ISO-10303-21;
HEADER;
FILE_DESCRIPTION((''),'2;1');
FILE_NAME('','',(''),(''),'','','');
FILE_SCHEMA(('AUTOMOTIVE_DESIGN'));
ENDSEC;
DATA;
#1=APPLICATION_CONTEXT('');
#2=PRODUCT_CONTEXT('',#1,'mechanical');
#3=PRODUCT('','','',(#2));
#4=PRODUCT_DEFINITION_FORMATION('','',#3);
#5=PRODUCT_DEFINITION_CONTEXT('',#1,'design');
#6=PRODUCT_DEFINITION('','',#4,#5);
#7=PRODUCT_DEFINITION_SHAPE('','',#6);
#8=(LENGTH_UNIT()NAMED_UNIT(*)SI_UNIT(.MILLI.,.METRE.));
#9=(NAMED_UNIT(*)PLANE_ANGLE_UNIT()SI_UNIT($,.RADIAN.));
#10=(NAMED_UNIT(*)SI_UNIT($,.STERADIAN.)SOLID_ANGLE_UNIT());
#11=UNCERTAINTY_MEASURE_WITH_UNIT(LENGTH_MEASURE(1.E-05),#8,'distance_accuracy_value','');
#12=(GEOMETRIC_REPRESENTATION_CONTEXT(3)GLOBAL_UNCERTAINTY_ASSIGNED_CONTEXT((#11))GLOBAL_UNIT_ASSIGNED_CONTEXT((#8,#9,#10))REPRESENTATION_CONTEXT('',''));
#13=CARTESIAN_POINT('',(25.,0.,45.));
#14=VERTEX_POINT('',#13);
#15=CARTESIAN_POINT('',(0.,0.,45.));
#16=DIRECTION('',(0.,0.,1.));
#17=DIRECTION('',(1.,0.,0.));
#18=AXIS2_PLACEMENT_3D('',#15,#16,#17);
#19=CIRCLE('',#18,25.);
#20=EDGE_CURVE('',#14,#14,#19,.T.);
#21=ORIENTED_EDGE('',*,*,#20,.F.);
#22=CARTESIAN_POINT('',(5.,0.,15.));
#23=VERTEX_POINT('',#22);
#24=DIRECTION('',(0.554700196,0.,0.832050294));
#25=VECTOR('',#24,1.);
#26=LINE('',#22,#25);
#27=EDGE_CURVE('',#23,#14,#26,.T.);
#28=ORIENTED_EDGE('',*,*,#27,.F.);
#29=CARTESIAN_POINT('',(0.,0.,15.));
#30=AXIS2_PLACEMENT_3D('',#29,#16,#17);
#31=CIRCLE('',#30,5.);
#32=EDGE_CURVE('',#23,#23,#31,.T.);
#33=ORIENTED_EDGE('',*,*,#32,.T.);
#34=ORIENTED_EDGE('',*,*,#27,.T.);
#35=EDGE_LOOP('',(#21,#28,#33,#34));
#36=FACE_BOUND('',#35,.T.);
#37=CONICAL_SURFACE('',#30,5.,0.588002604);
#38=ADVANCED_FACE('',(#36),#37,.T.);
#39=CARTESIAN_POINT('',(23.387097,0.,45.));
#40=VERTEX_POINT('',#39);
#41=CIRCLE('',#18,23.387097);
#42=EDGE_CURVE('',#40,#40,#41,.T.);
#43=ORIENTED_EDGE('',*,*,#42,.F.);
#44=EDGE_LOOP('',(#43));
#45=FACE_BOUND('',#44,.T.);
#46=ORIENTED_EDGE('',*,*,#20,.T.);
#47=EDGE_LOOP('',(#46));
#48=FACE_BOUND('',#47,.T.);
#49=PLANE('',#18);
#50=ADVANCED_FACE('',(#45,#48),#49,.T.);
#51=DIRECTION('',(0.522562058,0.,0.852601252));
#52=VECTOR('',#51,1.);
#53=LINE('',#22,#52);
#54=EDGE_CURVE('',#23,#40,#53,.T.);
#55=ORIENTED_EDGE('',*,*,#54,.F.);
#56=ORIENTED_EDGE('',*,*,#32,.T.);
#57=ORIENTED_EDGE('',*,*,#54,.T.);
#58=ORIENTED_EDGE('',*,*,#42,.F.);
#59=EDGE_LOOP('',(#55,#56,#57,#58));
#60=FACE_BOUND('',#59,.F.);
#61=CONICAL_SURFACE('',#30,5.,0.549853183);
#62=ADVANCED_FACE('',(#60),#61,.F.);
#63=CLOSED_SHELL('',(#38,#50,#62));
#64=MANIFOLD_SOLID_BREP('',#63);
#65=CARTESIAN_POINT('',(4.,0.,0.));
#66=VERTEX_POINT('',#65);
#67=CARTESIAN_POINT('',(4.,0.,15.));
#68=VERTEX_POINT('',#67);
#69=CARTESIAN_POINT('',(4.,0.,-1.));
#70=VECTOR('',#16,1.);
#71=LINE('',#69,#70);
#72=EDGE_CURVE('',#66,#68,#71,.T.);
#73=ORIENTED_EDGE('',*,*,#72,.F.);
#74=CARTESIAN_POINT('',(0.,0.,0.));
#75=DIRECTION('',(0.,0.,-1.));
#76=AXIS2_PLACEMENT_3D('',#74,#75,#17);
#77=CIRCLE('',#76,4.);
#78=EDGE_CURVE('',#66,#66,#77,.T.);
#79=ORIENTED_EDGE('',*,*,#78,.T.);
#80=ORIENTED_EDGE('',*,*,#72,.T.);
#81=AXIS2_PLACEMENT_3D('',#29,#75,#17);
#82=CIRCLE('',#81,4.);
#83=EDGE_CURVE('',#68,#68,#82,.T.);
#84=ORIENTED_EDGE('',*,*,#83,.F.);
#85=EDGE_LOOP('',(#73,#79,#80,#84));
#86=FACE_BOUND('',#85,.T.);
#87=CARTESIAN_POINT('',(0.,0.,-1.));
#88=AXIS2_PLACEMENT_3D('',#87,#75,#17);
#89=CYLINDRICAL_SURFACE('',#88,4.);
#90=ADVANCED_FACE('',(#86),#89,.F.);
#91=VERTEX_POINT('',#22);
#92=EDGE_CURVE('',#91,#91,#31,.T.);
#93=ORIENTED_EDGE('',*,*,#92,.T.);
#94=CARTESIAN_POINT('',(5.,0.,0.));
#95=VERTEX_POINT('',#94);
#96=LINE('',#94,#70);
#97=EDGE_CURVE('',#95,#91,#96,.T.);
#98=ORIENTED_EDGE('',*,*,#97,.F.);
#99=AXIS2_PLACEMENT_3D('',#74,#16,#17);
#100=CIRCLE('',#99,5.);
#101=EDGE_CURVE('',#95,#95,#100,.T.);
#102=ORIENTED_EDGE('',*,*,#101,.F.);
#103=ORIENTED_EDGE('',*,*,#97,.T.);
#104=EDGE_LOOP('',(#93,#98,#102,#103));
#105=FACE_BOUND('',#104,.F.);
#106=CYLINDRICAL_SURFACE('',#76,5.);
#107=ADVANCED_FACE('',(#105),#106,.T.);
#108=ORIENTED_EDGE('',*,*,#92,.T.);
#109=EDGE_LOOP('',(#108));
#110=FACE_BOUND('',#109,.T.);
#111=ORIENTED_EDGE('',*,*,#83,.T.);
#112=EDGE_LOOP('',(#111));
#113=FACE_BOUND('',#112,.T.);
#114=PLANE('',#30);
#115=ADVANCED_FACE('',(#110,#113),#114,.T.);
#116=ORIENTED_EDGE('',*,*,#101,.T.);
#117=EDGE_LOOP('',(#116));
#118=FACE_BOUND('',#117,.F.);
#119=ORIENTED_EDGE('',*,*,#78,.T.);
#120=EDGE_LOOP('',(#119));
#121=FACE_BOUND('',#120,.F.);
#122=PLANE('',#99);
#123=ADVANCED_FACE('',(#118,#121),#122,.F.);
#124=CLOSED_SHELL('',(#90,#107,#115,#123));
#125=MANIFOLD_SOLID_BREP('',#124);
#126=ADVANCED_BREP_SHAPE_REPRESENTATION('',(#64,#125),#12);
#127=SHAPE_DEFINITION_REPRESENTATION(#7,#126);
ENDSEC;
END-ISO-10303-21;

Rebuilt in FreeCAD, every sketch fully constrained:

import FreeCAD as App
import Part
import Sketcher

V = App.Vector
Q = App.Units.Quantity

doc = App.newDocument("Part")
body = doc.addObject("PartDesign::Body", "Body")

# Sketch on XY plane
sketch1 = doc.addObject("Sketcher::SketchObject", "Sketch")
body.addObject(sketch1)
sketch1.AttachmentSupport = (doc.XY_Plane, [""])
sketch1.MapMode = "FlatFace"
sketch1.AttachmentOffset = App.Placement(V(0, 0, -1), App.Rotation())
sketch1.addGeometry(Part.Circle(V(0, 0, 0), V(0, 0, 1), 4), False)
sketch1.addConstraint([
    Sketcher.Constraint("Coincident", 0, 3, -1, 1),
    Sketcher.Constraint("Diameter", 0, Q("8 mm")),
])
pad1 = doc.addObject("PartDesign::Pad", "Pad")
body.addObject(pad1)
pad1.Profile = sketch1
pad1.Length = 17
body2 = doc.addObject("PartDesign::Body", "Body001")

# Sketch on XY plane
sketch2 = doc.addObject("Sketcher::SketchObject", "Sketch001")
body2.addObject(sketch2)
sketch2.AttachmentSupport = (doc.getObject("XY_Plane001"), [""])
sketch2.MapMode = "FlatFace"
sketch2.addGeometry(Part.Circle(V(0, 0, 0), V(0, 0, 1), 5), False)
sketch2.addConstraint([
    Sketcher.Constraint("Coincident", 0, 3, -1, 1),
    Sketcher.Constraint("Diameter", 0, Q("10 mm")),
])
pad2 = doc.addObject("PartDesign::Pad", "Pad001")
body2.addObject(pad2)
pad2.Profile = sketch2
pad2.Length = 15
doc.recompute()

boolean = doc.addObject("PartDesign::Boolean", "Boolean")
body2.addObject(boolean)
boolean.Type = "Cut"
boolean.addObjects([body])
body3 = doc.addObject("PartDesign::Body", "Body002")

# Sketch on XZ plane
sketch3 = doc.addObject("Sketcher::SketchObject", "Sketch002")
body3.addObject(sketch3)
sketch3.AttachmentSupport = (doc.getObject("XZ_Plane002"), [""])
sketch3.MapMode = "FlatFace"
sketch3.addGeometry([
    Part.LineSegment(V(0, 15, 0), V(5, 15, 0)),
    Part.LineSegment(V(5, 15, 0), V(24, 46, 0)),
    Part.LineSegment(V(24, 46, 0), V(0, 46, 0)),
    Part.LineSegment(V(0, 46, 0), V(0, 15, 0)),
], False)
sketch3.addConstraint([
    Sketcher.Constraint("Coincident", 0, 2, 1, 1),
    Sketcher.Constraint("Coincident", 1, 2, 2, 1),
    Sketcher.Constraint("Coincident", 2, 2, 3, 1),
    Sketcher.Constraint("Coincident", 3, 2, 0, 1),
    Sketcher.Constraint("Horizontal", 0),
    Sketcher.Constraint("Horizontal", 2),
    Sketcher.Constraint("Vertical", 3),
    Sketcher.Constraint("PointOnObject", 2, 2, -2),
    Sketcher.Constraint("DistanceX", 0, 1, 0, 2, Q("5 mm")),
    Sketcher.Constraint("DistanceX", 2, 2, 2, 1, Q("24 mm")),
    Sketcher.Constraint("DistanceY", 3, 2, 3, 1, Q("31 mm")),
    Sketcher.Constraint("DistanceY", -1, 1, 0, 2, Q("15 mm")),
])
revolution = doc.addObject("PartDesign::Revolution", "Revolution")
body3.addObject(revolution)
revolution.Profile = sketch3
revolution.ReferenceAxis = (sketch3, ["V_Axis"])
revolution.Angle = 360
body4 = doc.addObject("PartDesign::Body", "Body003")

# Sketch on XZ plane
sketch4 = doc.addObject("Sketcher::SketchObject", "Sketch003")
body4.addObject(sketch4)
sketch4.AttachmentSupport = (doc.getObject("XZ_Plane003"), [""])
sketch4.MapMode = "FlatFace"
sketch4.addGeometry([
    Part.LineSegment(V(0, 15, 0), V(5, 15, 0)),
    Part.LineSegment(V(5, 15, 0), V(25, 45, 0)),
    Part.LineSegment(V(25, 45, 0), V(0, 45, 0)),
    Part.LineSegment(V(0, 45, 0), V(0, 15, 0)),
], False)
sketch4.addConstraint([
    Sketcher.Constraint("Coincident", 0, 2, 1, 1),
    Sketcher.Constraint("Coincident", 1, 2, 2, 1),
    Sketcher.Constraint("Coincident", 2, 2, 3, 1),
    Sketcher.Constraint("Coincident", 3, 2, 0, 1),
    Sketcher.Constraint("Horizontal", 0),
    Sketcher.Constraint("Horizontal", 2),
    Sketcher.Constraint("Vertical", 3),
    Sketcher.Constraint("PointOnObject", 2, 2, -2),
    Sketcher.Constraint("DistanceX", 0, 1, 0, 2, Q("5 mm")),
    Sketcher.Constraint("DistanceX", 2, 2, 2, 1, Q("25 mm")),
    Sketcher.Constraint("DistanceY", 3, 2, 3, 1, Q("30 mm")),
    Sketcher.Constraint("DistanceY", -1, 1, 0, 2, Q("15 mm")),
])
revolution2 = doc.addObject("PartDesign::Revolution", "Revolution001")
body4.addObject(revolution2)
revolution2.Profile = sketch4
revolution2.ReferenceAxis = (sketch4, ["V_Axis"])
revolution2.Angle = 360
doc.recompute()

boolean2 = doc.addObject("PartDesign::Boolean", "Boolean001")
body4.addObject(boolean2)
boolean2.Type = "Cut"
boolean2.addObjects([body3])

doc.recompute()
